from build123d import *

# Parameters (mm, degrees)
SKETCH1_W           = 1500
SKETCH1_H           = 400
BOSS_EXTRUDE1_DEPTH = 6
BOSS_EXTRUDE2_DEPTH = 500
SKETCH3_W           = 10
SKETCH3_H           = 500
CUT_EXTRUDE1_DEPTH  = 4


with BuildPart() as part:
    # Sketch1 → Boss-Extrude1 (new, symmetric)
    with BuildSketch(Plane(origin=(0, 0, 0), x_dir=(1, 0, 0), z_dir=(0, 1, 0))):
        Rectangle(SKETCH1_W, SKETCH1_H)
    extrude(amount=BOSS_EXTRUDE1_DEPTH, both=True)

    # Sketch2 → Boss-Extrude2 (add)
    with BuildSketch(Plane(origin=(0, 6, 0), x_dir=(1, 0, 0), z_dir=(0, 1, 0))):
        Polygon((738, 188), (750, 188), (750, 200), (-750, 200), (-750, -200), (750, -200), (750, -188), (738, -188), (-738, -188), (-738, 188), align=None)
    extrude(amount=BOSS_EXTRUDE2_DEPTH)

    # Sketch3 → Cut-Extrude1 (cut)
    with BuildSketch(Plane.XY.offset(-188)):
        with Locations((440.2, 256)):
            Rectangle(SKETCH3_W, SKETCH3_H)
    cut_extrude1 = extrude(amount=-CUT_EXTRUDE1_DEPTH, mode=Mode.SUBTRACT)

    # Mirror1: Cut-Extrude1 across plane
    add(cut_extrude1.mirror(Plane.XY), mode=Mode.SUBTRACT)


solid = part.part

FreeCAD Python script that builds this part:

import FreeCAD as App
import Part
import Sketcher
from FreeCAD import Vector
Q = App.Units.Quantity


def add_polygon(sketch, points):
    """Adds a closed chain of lines whose ends are joined by coincident constraints."""
    first, n = sketch.GeometryCount, len(points)
    for a, b in zip(points, points[1:] + points[:1]):
        sketch.addGeometry(Part.LineSegment(App.Vector(*a, 0), App.Vector(*b, 0)), False)
    for i in range(n):
        sketch.addConstraint(Sketcher.Constraint("Coincident", first + i, 2, first + (i + 1) % n, 1))

doc = App.newDocument("Part")
body = doc.addObject("PartDesign::Body", "Body")

# Sketch on XZ plane
sketch1 = body.newObject("Sketcher::SketchObject", "Sketch")
sketch1.AttachmentSupport = (doc.getObject("XZ_Plane"), [""])
sketch1.MapMode = "FlatFace"
add_polygon(sketch1, [(-750, -200), (-750, 200), (750, 200), (750, -200)])  # lines 0-3
sketch1.addConstraint([
    Sketcher.Constraint("Vertical", 0),
    Sketcher.Constraint("Horizontal", 1),
    Sketcher.Constraint("Vertical", 2),
    Sketcher.Constraint("Horizontal", 3),
    Sketcher.Constraint("Symmetric", 0, 2, 2, 2, -1, 1),
    Sketcher.Constraint("DistanceX", 1, 1, 1, 2, Q("1500 mm")),
    Sketcher.Constraint("DistanceY", 0, 1, 0, 2, Q("400 mm")),
])
pad1 = body.newObject("PartDesign::Pad", "Pad")
pad1.Profile = sketch1
pad1.Length = 12
pad1.Midplane = True

# Sketch on XZ plane
sketch2 = body.newObject("Sketcher::SketchObject", "Sketch001")
sketch2.AttachmentSupport = (doc.getObject("XZ_Plane"), [""])
sketch2.MapMode = "FlatFace"
sketch2.AttachmentOffset = App.Placement(Vector(0, 0, -6), App.Rotation())
add_polygon(sketch2, [(750, -188), (750, -200), (-750, -200), (-750, 200), (750, 200), (750, 188), (-738, 188), (-738, -188)])  # lines 0-7
sketch2.addConstraint([
    Sketcher.Constraint("Vertical", 0),
    Sketcher.Constraint("Horizontal", 1),
    Sketcher.Constraint("Vertical", 2),
    Sketcher.Constraint("Horizontal", 3),
    Sketcher.Constraint("Vertical", 4),
    Sketcher.Constraint("Horizontal", 5),
    Sketcher.Constraint("Vertical", 6),
    Sketcher.Constraint("Horizontal", 7),
    Sketcher.Constraint("Symmetric", 0, 2, 2, 2, -1, 1),
    Sketcher.Constraint("Symmetric", 4, 2, 7, 2, -1),
    Sketcher.Constraint("DistanceX", 1, 2, 1, 1, Q("1500 mm")),
    Sketcher.Constraint("DistanceX", 5, 2, 5, 1, Q("1488 mm")),
    Sketcher.Constraint("DistanceY", 0, 2, 0, 1, Q("12 mm")),
    Sketcher.Constraint("DistanceY", 2, 1, 2, 2, Q("400 mm")),
])
pad2 = body.newObject("PartDesign::Pad", "Pad001")
pad2.Profile = sketch2
pad2.Length = 500
pad2.Reversed = True

# Sketch on XY plane
sketch3 = body.newObject("Sketcher::SketchObject", "Sketch002")
sketch3.AttachmentSupport = (doc.getObject("XY_Plane"), [""])
sketch3.MapMode = "FlatFace"
sketch3.AttachmentOffset = App.Placement(Vector(0, 0, -188), App.Rotation())
add_polygon(sketch3, [(435, 506), (435, 6), (445, 6), (445, 506)])  # lines 0-3
sketch3.addConstraint([
    Sketcher.Constraint("Vertical", 0),
    Sketcher.Constraint("Horizontal", 1),
    Sketcher.Constraint("Vertical", 2),
    Sketcher.Constraint("Horizontal", 3),
    Sketcher.Constraint("DistanceX", 1, 1, 1, 2, Q("10 mm")),
    Sketcher.Constraint("DistanceY", 0, 2, 0, 1, Q("500 mm")),
    Sketcher.Constraint("DistanceY", -1, 1, 0, 2, Q("6 mm")),
    Sketcher.Constraint("DistanceX", -1, 1, 0, 2, Q("435.2 mm")),
])
pocket1 = body.newObject("PartDesign::Pocket", "Pocket")
pocket1.Profile = sketch3
pocket1.Length = 4
doc.recompute()

mirrored = body.newObject("PartDesign::Mirrored", "Mirrored")
mirrored.Originals = [pocket1]
mirrored.MirrorPlane = (doc.getObject("XY_Plane"), [""])
body.Tip = mirrored

doc.recompute()
